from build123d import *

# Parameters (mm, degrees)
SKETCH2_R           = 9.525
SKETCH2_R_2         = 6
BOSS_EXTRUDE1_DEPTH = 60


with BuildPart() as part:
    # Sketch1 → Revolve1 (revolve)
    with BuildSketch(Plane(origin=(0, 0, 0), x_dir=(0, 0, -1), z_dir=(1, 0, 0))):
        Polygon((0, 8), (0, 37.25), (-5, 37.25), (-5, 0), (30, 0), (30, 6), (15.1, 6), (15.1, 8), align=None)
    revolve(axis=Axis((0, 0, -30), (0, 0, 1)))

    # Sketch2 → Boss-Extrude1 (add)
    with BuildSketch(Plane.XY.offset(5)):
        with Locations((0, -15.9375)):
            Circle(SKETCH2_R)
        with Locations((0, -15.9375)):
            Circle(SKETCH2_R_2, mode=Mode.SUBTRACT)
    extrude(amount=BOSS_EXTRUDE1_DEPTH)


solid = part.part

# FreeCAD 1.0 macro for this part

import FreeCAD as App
import Part
import Sketcher
Q = App.Units.Quantity

doc = App.newDocument("Part")
body = doc.addObject("PartDesign::Body", "Body")

sketch1 = body.newObject("Sketcher::SketchObject", "Sketch")
sketch1.AttachmentSupport = (doc.getObject("YZ_Plane"), [""])
sketch1.MapMode = "FlatFace"
sketch1.addGeometry(Part.LineSegment(App.Vector(8, 0, 0), App.Vector(37.2, 0, 0)), False)
sketch1.addGeometry(Part.LineSegment(App.Vector(37.2, 0, 0), App.Vector(37.2, 5, 0)), False)
sketch1.addGeometry(Part.LineSegment(App.Vector(37.2, 5, 0), App.Vector(0, 5, 0)), False)
sketch1.addGeometry(Part.LineSegment(App.Vector(0, 5, 0), App.Vector(0, -30, 0)), False)
sketch1.addGeometry(Part.LineSegment(App.Vector(0, -30, 0), App.Vector(6, -30, 0)), False)
sketch1.addGeometry(Part.LineSegment(App.Vector(6, -30, 0), App.Vector(6, -15.1, 0)), False)
sketch1.addGeometry(Part.LineSegment(App.Vector(6, -15.1, 0), App.Vector(8, -15.1, 0)), False)
sketch1.addGeometry(Part.LineSegment(App.Vector(8, -15.1, 0), App.Vector(8, 0, 0)), False)
sketch1.addConstraint(Sketcher.Constraint("Coincident", 0, 2, 1, 1))
sketch1.addConstraint(Sketcher.Constraint("Coincident", 1, 2, 2, 1))
sketch1.addConstraint(Sketcher.Constraint("Coincident", 2, 2, 3, 1))
sketch1.addConstraint(Sketcher.Constraint("Coincident", 3, 2, 4, 1))
sketch1.addConstraint(Sketcher.Constraint("Coincident", 4, 2, 5, 1))
sketch1.addConstraint(Sketcher.Constraint("Coincident", 5, 2, 6, 1))
sketch1.addConstraint(Sketcher.Constraint("Coincident", 6, 2, 7, 1))
sketch1.addConstraint(Sketcher.Constraint("Coincident", 7, 2, 0, 1))
sketch1.addConstraint(Sketcher.Constraint("Horizontal", 0))
sketch1.addConstraint(Sketcher.Constraint("Vertical", 1))
sketch1.addConstraint(Sketcher.Constraint("Horizontal", 2))
sketch1.addConstraint(Sketcher.Constraint("Vertical", 3))
sketch1.addConstraint(Sketcher.Constraint("Horizontal", 4))
sketch1.addConstraint(Sketcher.Constraint("Vertical", 5))
sketch1.addConstraint(Sketcher.Constraint("Horizontal", 6))
sketch1.addConstraint(Sketcher.Constraint("Vertical", 7))
sketch1.addConstraint(Sketcher.Constraint("PointOnObject", 0, 2, -1))
sketch1.addConstraint(Sketcher.Constraint("PointOnObject", 2, 2, -2))
sketch1.addConstraint(Sketcher.Constraint("DistanceX", 4, 1, 4, 2, Q("6 mm")))
sketch1.addConstraint(Sketcher.Constraint("DistanceX", 6, 1, 6, 2, Q("2 mm")))
sketch1.addConstraint(Sketcher.Constraint("DistanceY", 1, 1, 1, 2, Q("5 mm")))
sketch1.addConstraint(Sketcher.Constraint("DistanceY", 3, 2, 3, 1, Q("35 mm")))
sketch1.addConstraint(Sketcher.Constraint("DistanceY", 5, 1, 5, 2, Q("14.9 mm")))
sketch1.addConstraint(Sketcher.Constraint("DistanceX", 0, 1, 0, 2, Q("29.25 mm")))
revolution = body.newObject("PartDesign::Revolution", "Revolution")
revolution.Profile = sketch1
revolution.ReferenceAxis = (sketch1, ["V_Axis"])
revolution.Angle = 360

sketch2 = body.newObject("Sketcher::SketchObject", "Sketch001")
sketch2.AttachmentSupport = (doc.getObject("XY_Plane"), [""])
sketch2.MapMode = "FlatFace"
sketch2.AttachmentOffset = App.Placement(App.Vector(0, 0, 5), App.Rotation())
sketch2.addGeometry(Part.Circle(App.Vector(0, -16, 0), App.Vector(0, 0, 1), 10), False)
sketch2.addGeometry(Part.Circle(App.Vector(0, -16, 0), App.Vector(0, 0, 1), 6), False)
sketch2.addConstraint(Sketcher.Constraint("Coincident", 1, 3, 0, 3))
sketch2.addConstraint(Sketcher.Constraint("PointOnObject", 0, 3, -2))
sketch2.addConstraint(Sketcher.Constraint("Diameter", 1, Q("12 mm")))
sketch2.addConstraint(Sketcher.Constraint("Diameter", 0, Q("19.05 mm")))
sketch2.addConstraint(Sketcher.Constraint("DistanceY", 0, 3, -1, 1, Q("15.9375 mm")))
pad1 = body.newObject("PartDesign::Pad", "Pad")
pad1.Profile = sketch2
pad1.Length = 60

doc.recompute()
